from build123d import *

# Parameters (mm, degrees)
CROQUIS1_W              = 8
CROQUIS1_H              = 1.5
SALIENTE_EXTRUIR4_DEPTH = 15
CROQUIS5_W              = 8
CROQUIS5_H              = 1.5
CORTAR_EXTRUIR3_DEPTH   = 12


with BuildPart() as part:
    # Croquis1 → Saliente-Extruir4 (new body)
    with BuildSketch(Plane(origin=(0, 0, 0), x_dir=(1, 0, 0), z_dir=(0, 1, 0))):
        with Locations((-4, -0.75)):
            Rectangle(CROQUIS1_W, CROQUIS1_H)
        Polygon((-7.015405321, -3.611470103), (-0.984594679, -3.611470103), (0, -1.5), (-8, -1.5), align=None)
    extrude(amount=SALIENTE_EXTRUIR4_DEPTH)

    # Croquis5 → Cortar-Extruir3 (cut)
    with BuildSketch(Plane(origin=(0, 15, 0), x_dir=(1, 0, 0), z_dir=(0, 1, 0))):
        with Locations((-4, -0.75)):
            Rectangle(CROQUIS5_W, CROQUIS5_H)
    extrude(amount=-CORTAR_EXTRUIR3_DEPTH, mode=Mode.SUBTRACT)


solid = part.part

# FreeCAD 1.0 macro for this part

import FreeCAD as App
import Part
import Sketcher
Q = App.Units.Quantity

doc = App.newDocument("Part")
body = doc.addObject("PartDesign::Body", "Body")

# Sketch on XZ plane
sketch1 = body.newObject("Sketcher::SketchObject", "Sketch")
sketch1.AttachmentSupport = (doc.getObject("XZ_Plane"), [""])
sketch1.MapMode = "FlatFace"
sketch1.addGeometry(Part.LineSegment(App.Vector(-8, 0, 0), App.Vector(-8, 1.5, 0)), False)
sketch1.addGeometry(Part.LineSegment(App.Vector(-8, 1.5, 0), App.Vector(-7, 3.6, 0)), False)
sketch1.addGeometry(Part.LineSegment(App.Vector(-7, 3.6, 0), App.Vector(-1, 3.6, 0)), False)
sketch1.addGeometry(Part.LineSegment(App.Vector(-1, 3.6, 0), App.Vector(0, 1.5, 0)), False)
sketch1.addGeometry(Part.LineSegment(App.Vector(0, 1.5, 0), App.Vector(0, 0, 0)), False)
sketch1.addGeometry(Part.LineSegment(App.Vector(0, 0, 0), App.Vector(-8, 0, 0)), False)
sketch1.addConstraint(Sketcher.Constraint("Coincident", 0, 2, 1, 1))
sketch1.addConstraint(Sketcher.Constraint("Coincident", 1, 2, 2, 1))
sketch1.addConstraint(Sketcher.Constraint("Coincident", 2, 2, 3, 1))
sketch1.addConstraint(Sketcher.Constraint("Coincident", 3, 2, 4, 1))
sketch1.addConstraint(Sketcher.Constraint("Coincident", 4, 2, 5, 1))
sketch1.addConstraint(Sketcher.Constraint("Coincident", 5, 2, 0, 1))
sketch1.addConstraint(Sketcher.Constraint("Vertical", 0))
sketch1.addConstraint(Sketcher.Constraint("Horizontal", 2))
sketch1.addConstraint(Sketcher.Constraint("Vertical", 4))
sketch1.addConstraint(Sketcher.Constraint("Horizontal", 5))
sketch1.addConstraint(Sketcher.Constraint("Coincident", 4, 2, -1, 1))
sketch1.addConstraint(Sketcher.Constraint("Horizontal", 0, 2, 3, 2))
sketch1.addConstraint(Sketcher.Constraint("Equal", 1, 3))
sketch1.addConstraint(Sketcher.Constraint("DistanceX", 5, 2, 5, 1, Q("8 mm")))
sketch1.addConstraint(Sketcher.Constraint("Angle", 1, Q("65 deg")))
sketch1.addConstraint(Sketcher.Constraint("DistanceY", 0, 1, 0, 2, Q("1.5 mm")))
sketch1.addConstraint(Sketcher.Constraint("DistanceX", 2, 1, 2, 2, Q("6.030811 mm")))
pad1 = body.newObject("PartDesign::Pad", "Pad")
pad1.Profile = sketch1
pad1.Length = 15
pad1.Reversed = True

# Sketch on XZ plane
sketch2 = body.newObject("Sketcher::SketchObject", "Sketch001")
sketch2.AttachmentSupport = (doc.getObject("XZ_Plane"), [""])
sketch2.MapMode = "FlatFace"
sketch2.AttachmentOffset = App.Placement(App.Vector(0, 0, -15), App.Rotation())
sketch2.addGeometry(Part.LineSegment(App.Vector(-8, 0, 0), App.Vector(-8, 1.5, 0)), False)
sketch2.addGeometry(Part.LineSegment(App.Vector(-8, 1.5, 0), App.Vector(0, 1.5, 0)), False)
sketch2.addGeometry(Part.LineSegment(App.Vector(0, 1.5, 0), App.Vector(0, 0, 0)), False)
sketch2.addGeometry(Part.LineSegment(App.Vector(0, 0, 0), App.Vector(-8, 0, 0)), False)
sketch2.addConstraint(Sketcher.Constraint("Coincident", 0, 2, 1, 1))
sketch2.addConstraint(Sketcher.Constraint("Coincident", 1, 2, 2, 1))
sketch2.addConstraint(Sketcher.Constraint("Coincident", 2, 2, 3, 1))
sketch2.addConstraint(Sketcher.Constraint("Coincident", 3, 2, 0, 1))
sketch2.addConstraint(Sketcher.Constraint("Vertical", 0))
sketch2.addConstraint(Sketcher.Constraint("Horizontal", 1))
sketch2.addConstraint(Sketcher.Constraint("Vertical", 2))
sketch2.addConstraint(Sketcher.Constraint("Horizontal", 3))
sketch2.addConstraint(Sketcher.Constraint("Coincident", 2, 2, -1, 1))
sketch2.addConstraint(Sketcher.Constraint("DistanceX", 1, 1, 1, 2, Q("8 mm")))
sketch2.addConstraint(Sketcher.Constraint("DistanceY", 0, 1, 0, 2, Q("1.5 mm")))
pocket1 = body.newObject("PartDesign::Pocket", "Pocket")
pocket1.Profile = sketch2
pocket1.Length = 12
pocket1.Reversed = True

doc.recompute()
